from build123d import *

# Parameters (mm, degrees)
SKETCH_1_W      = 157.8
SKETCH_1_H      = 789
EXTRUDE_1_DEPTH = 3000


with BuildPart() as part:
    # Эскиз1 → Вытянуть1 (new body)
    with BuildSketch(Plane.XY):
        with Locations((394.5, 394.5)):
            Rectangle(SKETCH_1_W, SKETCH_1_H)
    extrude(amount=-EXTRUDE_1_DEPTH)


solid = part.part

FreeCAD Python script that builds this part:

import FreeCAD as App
import Part
import Sketcher

V = App.Vector
Q = App.Units.Quantity

doc = App.newDocument("Part")
body = doc.addObject("PartDesign::Body", "Body")

# Sketch on XY plane
sketch1 = body.newObject("Sketcher::SketchObject", "Sketch")
sketch1.AttachmentSupport = (doc.getObject("XY_Plane"), [""])
sketch1.MapMode = "FlatFace"
sketch1.addGeometry(Part.LineSegment(V(315.6, 789, 0), V(315.6, 0, 0)), False)
sketch1.addGeometry(Part.LineSegment(V(315.6, 0, 0), V(473.4, 0, 0)), False)
sketch1.addGeometry(Part.LineSegment(V(473.4, 0, 0), V(473.4, 789, 0)), False)
sketch1.addGeometry(Part.LineSegment(V(473.4, 789, 0), V(315.6, 789, 0)), False)
sketch1.addConstraint(Sketcher.Constraint("Coincident", 0, 2, 1, 1))
sketch1.addConstraint(Sketcher.Constraint("Coincident", 1, 2, 2, 1))
sketch1.addConstraint(Sketcher.Constraint("Coincident", 2, 2, 3, 1))
sketch1.addConstraint(Sketcher.Constraint("Coincident", 3, 2, 0, 1))
sketch1.addConstraint(Sketcher.Constraint("Vertical", 0))
sketch1.addConstraint(Sketcher.Constraint("Horizontal", 1))
sketch1.addConstraint(Sketcher.Constraint("Vertical", 2))
sketch1.addConstraint(Sketcher.Constraint("Horizontal", 3))
sketch1.addConstraint(Sketcher.Constraint("PointOnObject", 0, 2, -1))
sketch1.addConstraint(Sketcher.Constraint("DistanceY", 0, 2, 0, 1, Q("789 mm")))
sketch1.addConstraint(Sketcher.Constraint("DistanceX", 1, 1, 1, 2, Q("157.8 mm")))
sketch1.addConstraint(Sketcher.Constraint("DistanceX", -1, 1, 0, 2, Q("315.6 mm")))
pad1 = body.newObject("PartDesign::Pad", "Pad")
pad1.Profile = sketch1
pad1.Length = 3000
pad1.Reversed = True

doc.recompute()
